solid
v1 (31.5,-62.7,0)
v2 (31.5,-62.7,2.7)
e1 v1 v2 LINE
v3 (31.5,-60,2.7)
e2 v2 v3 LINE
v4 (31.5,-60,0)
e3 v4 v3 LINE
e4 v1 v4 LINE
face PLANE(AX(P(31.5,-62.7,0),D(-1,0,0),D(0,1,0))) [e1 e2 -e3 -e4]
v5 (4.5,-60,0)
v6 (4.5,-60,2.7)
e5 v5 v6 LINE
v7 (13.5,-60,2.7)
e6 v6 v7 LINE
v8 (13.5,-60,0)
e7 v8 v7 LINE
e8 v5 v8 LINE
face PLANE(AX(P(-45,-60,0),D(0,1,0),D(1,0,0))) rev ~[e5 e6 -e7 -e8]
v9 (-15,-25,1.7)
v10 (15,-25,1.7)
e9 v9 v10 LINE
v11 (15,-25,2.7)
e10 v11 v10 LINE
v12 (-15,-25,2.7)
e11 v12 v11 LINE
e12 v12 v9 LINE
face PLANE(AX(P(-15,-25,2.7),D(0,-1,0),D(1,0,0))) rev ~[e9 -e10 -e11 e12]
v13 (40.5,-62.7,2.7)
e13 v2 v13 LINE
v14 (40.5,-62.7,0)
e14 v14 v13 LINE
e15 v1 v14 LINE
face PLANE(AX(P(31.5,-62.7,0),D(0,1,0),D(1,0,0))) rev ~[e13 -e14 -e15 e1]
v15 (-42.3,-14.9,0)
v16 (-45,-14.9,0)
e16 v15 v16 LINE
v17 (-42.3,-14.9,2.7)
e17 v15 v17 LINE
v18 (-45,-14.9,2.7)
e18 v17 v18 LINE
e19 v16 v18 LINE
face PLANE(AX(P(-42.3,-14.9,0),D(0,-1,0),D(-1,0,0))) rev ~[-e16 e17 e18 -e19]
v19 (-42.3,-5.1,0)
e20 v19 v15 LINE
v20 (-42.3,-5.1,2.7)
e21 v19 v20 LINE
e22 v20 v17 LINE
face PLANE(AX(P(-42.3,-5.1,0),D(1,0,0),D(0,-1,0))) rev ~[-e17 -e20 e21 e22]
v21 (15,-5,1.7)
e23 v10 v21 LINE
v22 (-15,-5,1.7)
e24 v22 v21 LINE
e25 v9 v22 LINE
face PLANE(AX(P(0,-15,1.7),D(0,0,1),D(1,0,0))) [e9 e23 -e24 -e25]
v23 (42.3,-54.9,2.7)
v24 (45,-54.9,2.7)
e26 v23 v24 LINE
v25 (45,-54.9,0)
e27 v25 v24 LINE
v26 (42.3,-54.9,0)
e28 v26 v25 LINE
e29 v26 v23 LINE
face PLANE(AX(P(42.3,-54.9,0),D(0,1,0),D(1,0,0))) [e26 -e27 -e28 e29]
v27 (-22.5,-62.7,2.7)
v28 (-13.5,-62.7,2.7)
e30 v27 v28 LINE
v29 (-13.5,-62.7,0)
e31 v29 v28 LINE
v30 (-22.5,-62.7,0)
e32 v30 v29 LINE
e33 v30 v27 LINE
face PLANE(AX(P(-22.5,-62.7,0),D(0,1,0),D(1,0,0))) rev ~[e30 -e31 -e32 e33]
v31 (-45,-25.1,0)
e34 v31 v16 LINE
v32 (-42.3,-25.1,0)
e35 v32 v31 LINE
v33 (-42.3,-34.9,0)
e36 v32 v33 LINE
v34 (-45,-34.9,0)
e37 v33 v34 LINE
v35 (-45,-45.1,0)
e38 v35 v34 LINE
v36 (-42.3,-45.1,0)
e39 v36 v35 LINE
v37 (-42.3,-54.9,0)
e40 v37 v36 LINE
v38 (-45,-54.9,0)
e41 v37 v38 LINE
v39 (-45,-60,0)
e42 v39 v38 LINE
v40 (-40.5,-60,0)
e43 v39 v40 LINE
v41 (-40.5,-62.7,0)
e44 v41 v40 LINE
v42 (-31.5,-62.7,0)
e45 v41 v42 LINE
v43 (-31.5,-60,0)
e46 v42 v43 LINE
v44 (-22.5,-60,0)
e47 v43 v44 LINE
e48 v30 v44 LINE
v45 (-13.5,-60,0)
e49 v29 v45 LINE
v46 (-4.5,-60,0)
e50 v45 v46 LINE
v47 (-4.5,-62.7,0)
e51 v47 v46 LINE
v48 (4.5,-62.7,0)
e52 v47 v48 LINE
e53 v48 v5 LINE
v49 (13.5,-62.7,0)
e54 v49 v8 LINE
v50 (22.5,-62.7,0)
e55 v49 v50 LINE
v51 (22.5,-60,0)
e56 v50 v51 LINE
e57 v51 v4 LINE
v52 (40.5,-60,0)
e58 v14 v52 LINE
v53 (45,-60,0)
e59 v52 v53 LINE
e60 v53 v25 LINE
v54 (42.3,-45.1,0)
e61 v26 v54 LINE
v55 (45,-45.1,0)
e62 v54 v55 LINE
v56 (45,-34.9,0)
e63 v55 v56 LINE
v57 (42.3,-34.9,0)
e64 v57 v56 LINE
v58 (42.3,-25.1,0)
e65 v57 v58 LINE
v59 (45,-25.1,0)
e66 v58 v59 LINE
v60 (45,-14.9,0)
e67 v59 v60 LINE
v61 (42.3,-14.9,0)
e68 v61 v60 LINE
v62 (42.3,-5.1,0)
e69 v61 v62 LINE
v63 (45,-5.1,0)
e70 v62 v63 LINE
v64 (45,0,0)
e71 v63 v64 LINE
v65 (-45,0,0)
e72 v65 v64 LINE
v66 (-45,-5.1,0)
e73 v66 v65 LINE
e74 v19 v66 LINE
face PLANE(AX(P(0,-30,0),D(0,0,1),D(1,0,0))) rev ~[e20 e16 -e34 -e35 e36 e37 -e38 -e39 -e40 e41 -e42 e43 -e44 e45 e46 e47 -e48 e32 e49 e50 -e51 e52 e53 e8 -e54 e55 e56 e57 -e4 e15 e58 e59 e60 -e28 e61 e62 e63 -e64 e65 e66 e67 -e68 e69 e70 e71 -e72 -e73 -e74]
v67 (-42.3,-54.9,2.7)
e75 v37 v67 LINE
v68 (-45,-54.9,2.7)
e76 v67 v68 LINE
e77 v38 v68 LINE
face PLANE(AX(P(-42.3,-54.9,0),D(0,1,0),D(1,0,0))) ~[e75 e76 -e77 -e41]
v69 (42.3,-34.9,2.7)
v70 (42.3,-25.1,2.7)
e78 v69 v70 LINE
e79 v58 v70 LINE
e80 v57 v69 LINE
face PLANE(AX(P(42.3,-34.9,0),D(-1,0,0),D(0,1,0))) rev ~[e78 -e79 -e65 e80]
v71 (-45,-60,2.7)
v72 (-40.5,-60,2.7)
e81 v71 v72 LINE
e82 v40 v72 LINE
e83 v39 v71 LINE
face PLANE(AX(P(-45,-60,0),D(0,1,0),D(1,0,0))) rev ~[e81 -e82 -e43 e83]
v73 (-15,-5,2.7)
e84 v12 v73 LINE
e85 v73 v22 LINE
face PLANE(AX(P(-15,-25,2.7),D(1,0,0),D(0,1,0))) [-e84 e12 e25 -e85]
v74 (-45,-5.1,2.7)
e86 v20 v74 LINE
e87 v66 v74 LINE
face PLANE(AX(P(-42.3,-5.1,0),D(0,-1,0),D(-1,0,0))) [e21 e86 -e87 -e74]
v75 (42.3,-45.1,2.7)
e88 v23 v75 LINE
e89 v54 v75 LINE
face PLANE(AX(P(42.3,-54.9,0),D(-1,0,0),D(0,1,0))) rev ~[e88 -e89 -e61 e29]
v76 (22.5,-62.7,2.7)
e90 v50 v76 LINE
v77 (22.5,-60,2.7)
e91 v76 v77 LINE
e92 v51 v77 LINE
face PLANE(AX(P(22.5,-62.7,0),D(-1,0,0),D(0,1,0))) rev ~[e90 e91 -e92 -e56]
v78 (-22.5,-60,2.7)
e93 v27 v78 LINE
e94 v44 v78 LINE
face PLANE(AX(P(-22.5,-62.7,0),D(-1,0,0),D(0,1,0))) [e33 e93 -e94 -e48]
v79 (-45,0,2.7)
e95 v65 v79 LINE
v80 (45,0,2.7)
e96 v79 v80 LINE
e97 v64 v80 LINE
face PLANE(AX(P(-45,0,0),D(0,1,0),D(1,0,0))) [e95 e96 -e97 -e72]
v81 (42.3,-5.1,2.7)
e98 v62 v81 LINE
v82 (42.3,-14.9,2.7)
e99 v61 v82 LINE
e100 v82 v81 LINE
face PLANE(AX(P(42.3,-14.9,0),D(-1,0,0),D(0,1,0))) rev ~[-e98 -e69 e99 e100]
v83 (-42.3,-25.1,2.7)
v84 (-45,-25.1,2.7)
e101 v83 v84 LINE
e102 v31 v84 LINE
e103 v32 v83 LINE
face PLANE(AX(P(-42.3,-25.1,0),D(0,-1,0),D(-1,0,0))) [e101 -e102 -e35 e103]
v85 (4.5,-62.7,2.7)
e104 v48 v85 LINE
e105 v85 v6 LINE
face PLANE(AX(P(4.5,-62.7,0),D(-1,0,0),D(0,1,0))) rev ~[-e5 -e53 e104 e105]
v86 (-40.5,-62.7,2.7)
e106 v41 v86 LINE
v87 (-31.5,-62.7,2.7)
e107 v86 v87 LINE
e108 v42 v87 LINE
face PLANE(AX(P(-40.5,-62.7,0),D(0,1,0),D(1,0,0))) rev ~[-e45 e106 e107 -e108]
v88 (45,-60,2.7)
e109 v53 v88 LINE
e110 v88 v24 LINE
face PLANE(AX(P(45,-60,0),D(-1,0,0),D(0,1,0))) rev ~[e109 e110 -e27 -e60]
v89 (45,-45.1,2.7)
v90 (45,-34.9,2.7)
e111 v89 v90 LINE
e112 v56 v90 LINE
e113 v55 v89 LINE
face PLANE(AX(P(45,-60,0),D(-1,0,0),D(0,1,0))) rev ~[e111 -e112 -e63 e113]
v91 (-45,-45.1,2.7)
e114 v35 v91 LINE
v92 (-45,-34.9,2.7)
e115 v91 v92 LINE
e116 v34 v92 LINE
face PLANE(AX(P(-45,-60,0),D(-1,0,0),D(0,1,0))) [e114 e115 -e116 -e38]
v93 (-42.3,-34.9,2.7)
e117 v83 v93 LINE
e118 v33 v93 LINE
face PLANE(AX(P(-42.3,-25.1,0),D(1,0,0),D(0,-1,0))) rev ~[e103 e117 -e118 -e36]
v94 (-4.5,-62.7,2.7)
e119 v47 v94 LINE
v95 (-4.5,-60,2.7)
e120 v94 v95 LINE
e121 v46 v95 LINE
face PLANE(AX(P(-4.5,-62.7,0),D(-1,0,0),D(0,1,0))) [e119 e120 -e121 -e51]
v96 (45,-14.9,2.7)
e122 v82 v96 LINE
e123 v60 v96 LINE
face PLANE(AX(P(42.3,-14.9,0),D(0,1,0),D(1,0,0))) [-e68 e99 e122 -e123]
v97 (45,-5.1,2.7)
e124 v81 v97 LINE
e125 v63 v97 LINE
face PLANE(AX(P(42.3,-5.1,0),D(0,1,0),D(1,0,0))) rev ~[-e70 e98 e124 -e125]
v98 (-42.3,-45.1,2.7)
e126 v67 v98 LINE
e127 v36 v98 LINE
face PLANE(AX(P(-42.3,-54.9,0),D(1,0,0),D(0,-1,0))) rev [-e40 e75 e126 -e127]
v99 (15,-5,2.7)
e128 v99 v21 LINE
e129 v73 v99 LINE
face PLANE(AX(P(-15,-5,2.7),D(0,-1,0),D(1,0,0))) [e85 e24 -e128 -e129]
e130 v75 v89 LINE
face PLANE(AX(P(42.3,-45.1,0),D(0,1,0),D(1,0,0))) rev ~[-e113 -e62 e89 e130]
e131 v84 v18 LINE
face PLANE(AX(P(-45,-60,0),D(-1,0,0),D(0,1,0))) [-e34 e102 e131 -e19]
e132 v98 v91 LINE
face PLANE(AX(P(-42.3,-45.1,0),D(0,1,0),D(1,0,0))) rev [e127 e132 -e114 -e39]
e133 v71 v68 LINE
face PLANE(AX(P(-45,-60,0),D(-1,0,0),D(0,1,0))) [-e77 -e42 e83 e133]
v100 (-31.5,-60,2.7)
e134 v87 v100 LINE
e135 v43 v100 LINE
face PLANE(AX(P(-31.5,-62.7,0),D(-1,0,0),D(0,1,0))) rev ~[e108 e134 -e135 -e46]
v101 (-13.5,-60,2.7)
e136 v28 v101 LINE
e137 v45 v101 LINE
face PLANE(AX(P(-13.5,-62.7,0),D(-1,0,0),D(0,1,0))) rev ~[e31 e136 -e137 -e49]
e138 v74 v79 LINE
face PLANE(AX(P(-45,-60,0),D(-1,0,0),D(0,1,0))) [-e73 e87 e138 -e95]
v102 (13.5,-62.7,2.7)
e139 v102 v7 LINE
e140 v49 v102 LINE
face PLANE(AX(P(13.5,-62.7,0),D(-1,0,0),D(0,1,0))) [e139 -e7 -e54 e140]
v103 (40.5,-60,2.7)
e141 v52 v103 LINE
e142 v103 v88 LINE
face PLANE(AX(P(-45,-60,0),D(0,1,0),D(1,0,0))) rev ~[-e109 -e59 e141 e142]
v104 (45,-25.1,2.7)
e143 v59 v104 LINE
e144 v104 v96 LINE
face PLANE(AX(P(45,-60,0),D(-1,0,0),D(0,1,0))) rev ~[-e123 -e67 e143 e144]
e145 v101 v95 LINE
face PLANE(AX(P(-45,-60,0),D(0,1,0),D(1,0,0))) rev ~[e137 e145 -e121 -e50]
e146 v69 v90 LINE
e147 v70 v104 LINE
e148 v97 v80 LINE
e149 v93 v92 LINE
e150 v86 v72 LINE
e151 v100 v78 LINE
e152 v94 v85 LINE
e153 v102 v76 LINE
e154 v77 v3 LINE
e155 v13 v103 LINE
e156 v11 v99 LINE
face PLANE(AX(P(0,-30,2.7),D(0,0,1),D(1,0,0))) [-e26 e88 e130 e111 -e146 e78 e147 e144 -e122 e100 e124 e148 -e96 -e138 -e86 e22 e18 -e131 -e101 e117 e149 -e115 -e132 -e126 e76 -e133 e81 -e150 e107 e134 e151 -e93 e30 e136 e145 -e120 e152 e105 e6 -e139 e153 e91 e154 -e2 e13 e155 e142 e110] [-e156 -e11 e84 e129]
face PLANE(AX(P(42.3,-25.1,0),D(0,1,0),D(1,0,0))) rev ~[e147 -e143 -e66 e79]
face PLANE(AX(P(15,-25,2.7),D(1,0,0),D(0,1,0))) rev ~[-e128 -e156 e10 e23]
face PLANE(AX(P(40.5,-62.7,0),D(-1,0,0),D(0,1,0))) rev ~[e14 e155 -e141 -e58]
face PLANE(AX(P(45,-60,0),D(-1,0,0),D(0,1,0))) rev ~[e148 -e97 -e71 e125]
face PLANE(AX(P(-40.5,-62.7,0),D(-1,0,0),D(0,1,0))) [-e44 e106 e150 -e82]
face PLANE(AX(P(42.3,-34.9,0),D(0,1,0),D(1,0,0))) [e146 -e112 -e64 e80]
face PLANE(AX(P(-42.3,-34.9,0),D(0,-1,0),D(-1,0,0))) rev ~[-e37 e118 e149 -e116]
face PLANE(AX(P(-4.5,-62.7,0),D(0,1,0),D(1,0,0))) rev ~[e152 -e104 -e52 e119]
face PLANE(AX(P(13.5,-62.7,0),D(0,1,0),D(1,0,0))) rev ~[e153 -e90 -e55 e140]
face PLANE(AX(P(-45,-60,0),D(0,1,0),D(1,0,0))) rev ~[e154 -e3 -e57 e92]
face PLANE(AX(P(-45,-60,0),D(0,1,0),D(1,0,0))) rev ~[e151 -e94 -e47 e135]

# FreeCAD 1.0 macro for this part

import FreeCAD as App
import Part
import Sketcher
Q = App.Units.Quantity

doc = App.newDocument("Part")
body = doc.addObject("PartDesign::Body", "Body")

# Sketch on XY plane
sketch1 = body.newObject("Sketcher::SketchObject", "Sketch")
sketch1.AttachmentSupport = (doc.getObject("XY_Plane"), [""])
sketch1.MapMode = "FlatFace"
sketch1.addGeometry([
    Part.LineSegment(App.Vector(-45, 0, 0), App.Vector(-45, -60, 0)),
    Part.LineSegment(App.Vector(-45, -60, 0), App.Vector(45, -60, 0)),
    Part.LineSegment(App.Vector(45, -60, 0), App.Vector(45, 0, 0)),
    Part.LineSegment(App.Vector(45, 0, 0), App.Vector(-45, 0, 0)),
], False)
sketch1.addConstraint([
    Sketcher.Constraint("Coincident", 0, 2, 1, 1),
    Sketcher.Constraint("Coincident", 1, 2, 2, 1),
    Sketcher.Constraint("Coincident", 2, 2, 3, 1),
    Sketcher.Constraint("Coincident", 3, 2, 0, 1),
    Sketcher.Constraint("Vertical", 0),
    Sketcher.Constraint("Horizontal", 1),
    Sketcher.Constraint("Vertical", 2),
    Sketcher.Constraint("Horizontal", 3),
    Sketcher.Constraint("Symmetric", 2, 2, 3, 2, -1, 1),
    Sketcher.Constraint("DistanceX", 1, 1, 1, 2, Q("90 mm")),
    Sketcher.Constraint("DistanceY", 0, 2, 0, 1, Q("60 mm")),
])
pad1 = body.newObject("PartDesign::Pad", "Pad")
pad1.Profile = sketch1
pad1.Length = 2.7

# Sketch on XY plane
sketch2 = body.newObject("Sketcher::SketchObject", "Sketch001")
sketch2.AttachmentSupport = (doc.getObject("XY_Plane"), [""])
sketch2.MapMode = "FlatFace"
sketch2.addGeometry([
    Part.LineSegment(App.Vector(-4.5, -60, 0), App.Vector(-4.5, -62.7, 0)),
    Part.LineSegment(App.Vector(-4.5, -62.7, 0), App.Vector(4.5, -62.7, 0)),
    Part.LineSegment(App.Vector(4.5, -62.7, 0), App.Vector(4.5, -60, 0)),
    Part.LineSegment(App.Vector(4.5, -60, 0), App.Vector(-4.5, -60, 0)),
], False)
sketch2.addConstraint([
    Sketcher.Constraint("Coincident", 0, 2, 1, 1),
    Sketcher.Constraint("Coincident", 1, 2, 2, 1),
    Sketcher.Constraint("Coincident", 2, 2, 3, 1),
    Sketcher.Constraint("Coincident", 3, 2, 0, 1),
    Sketcher.Constraint("Vertical", 0),
    Sketcher.Constraint("Horizontal", 1),
    Sketcher.Constraint("Vertical", 2),
    Sketcher.Constraint("Horizontal", 3),
    Sketcher.Constraint("DistanceX", 1, 1, 1, 2, Q("9 mm")),
    Sketcher.Constraint("DistanceY", 0, 2, 0, 1, Q("2.7 mm")),
    Sketcher.Constraint("DistanceY", 2, 2, -1, 1, Q("60 mm")),
    Sketcher.Constraint("DistanceX", 0, 2, -1, 1, Q("4.5 mm")),
])
pad2 = body.newObject("PartDesign::Pad", "Pad001")
pad2.Profile = sketch2
pad2.Length = 2.7
doc.recompute()

linearpattern = body.newObject("PartDesign::LinearPattern", "LinearPattern")
linearpattern.Originals = [pad2]
linearpattern.Direction = (doc.getObject("X_Axis"), [""])
linearpattern.Mode = "offset"
linearpattern.Offset = 18
linearpattern.Occurrences = 3
body.Tip = linearpattern
doc.recompute()

linearpattern2 = body.newObject("PartDesign::LinearPattern", "LinearPattern001")
linearpattern2.Originals = [pad2]
linearpattern2.Direction = (doc.getObject("X_Axis"), [""])
linearpattern2.Mode = "offset"
linearpattern2.Offset = 18
linearpattern2.Occurrences = 3
linearpattern2.Reversed = True
body.Tip = linearpattern2

# Sketch on XY plane
sketch3 = body.newObject("Sketcher::SketchObject", "Sketch002")
sketch3.AttachmentSupport = (doc.getObject("XY_Plane"), [""])
sketch3.MapMode = "FlatFace"
sketch3.addGeometry([
    Part.LineSegment(App.Vector(42.3, -45.1, 0), App.Vector(42.3, -54.9, 0)),
    Part.LineSegment(App.Vector(42.3, -54.9, 0), App.Vector(45, -54.9, 0)),
    Part.LineSegment(App.Vector(45, -54.9, 0), App.Vector(45, -45.1, 0)),
    Part.LineSegment(App.Vector(45, -45.1, 0), App.Vector(42.3, -45.1, 0)),
], False)
sketch3.addConstraint([
    Sketcher.Constraint("Coincident", 0, 2, 1, 1),
    Sketcher.Constraint("Coincident", 1, 2, 2, 1),
    Sketcher.Constraint("Coincident", 2, 2, 3, 1),
    Sketcher.Constraint("Coincident", 3, 2, 0, 1),
    Sketcher.Constraint("Vertical", 0),
    Sketcher.Constraint("Horizontal", 1),
    Sketcher.Constraint("Vertical", 2),
    Sketcher.Constraint("Horizontal", 3),
    Sketcher.Constraint("DistanceX", 1, 1, 1, 2, Q("2.7 mm")),
    Sketcher.Constraint("DistanceY", 0, 2, 0, 1, Q("9.8 mm")),
    Sketcher.Constraint("DistanceX", -1, 1, 1, 2, Q("45 mm")),
    Sketcher.Constraint("DistanceY", 0, 2, -1, 1, Q("54.9 mm")),
])
pocket1 = body.newObject("PartDesign::Pocket", "Pocket")
pocket1.Profile = sketch3
pocket1.Length = 2.7
pocket1.Reversed = True
doc.recompute()

linearpattern3 = body.newObject("PartDesign::LinearPattern", "LinearPattern002")
linearpattern3.Originals = [pocket1]
linearpattern3.Direction = (doc.getObject("Y_Axis"), [""])
linearpattern3.Mode = "offset"
linearpattern3.Offset = 20
linearpattern3.Occurrences = 5
body.Tip = linearpattern3
doc.recompute()

mirrored = body.newObject("PartDesign::Mirrored", "Mirrored")
mirrored.Originals = [pocket1]
mirrored.MirrorPlane = (doc.getObject("YZ_Plane"), [""])
body.Tip = mirrored

# Sketch on XY plane
sketch4 = body.newObject("Sketcher::SketchObject", "Sketch003")
sketch4.AttachmentSupport = (doc.getObject("XY_Plane"), [""])
sketch4.MapMode = "FlatFace"
sketch4.addGeometry([
    Part.LineSegment(App.Vector(-42.3, -34.9, 0), App.Vector(-42.3, -25.1, 0)),
    Part.LineSegment(App.Vector(-42.3, -25.1, 0), App.Vector(-45, -25.1, 0)),
    Part.LineSegment(App.Vector(-45, -25.1, 0), App.Vector(-45, -34.9, 0)),
    Part.LineSegment(App.Vector(-45, -34.9, 0), App.Vector(-42.3, -34.9, 0)),
], False)
sketch4.addConstraint([
    Sketcher.Constraint("Coincident", 0, 2, 1, 1),
    Sketcher.Constraint("Coincident", 1, 2, 2, 1),
    Sketcher.Constraint("Coincident", 2, 2, 3, 1),
    Sketcher.Constraint("Coincident", 3, 2, 0, 1),
    Sketcher.Constraint("Vertical", 0),
    Sketcher.Constraint("Horizontal", 1),
    Sketcher.Constraint("Vertical", 2),
    Sketcher.Constraint("Horizontal", 3),
    Sketcher.Constraint("DistanceX", 1, 2, 1, 1, Q("2.7 mm")),
    Sketcher.Constraint("DistanceY", 0, 1, 0, 2, Q("9.8 mm")),
    Sketcher.Constraint("DistanceX", 1, 2, -1, 1, Q("45 mm")),
    Sketcher.Constraint("DistanceY", 0, 2, -1, 1, Q("25.1 mm")),
])
pocket2 = body.newObject("PartDesign::Pocket", "Pocket001")
pocket2.Profile = sketch4
pocket2.Length = 2.7
pocket2.Reversed = True

# Sketch on XY plane
sketch5 = body.newObject("Sketcher::SketchObject", "Sketch004")
sketch5.AttachmentSupport = (doc.getObject("XY_Plane"), [""])
sketch5.MapMode = "FlatFace"
sketch5.addGeometry([
    Part.LineSegment(App.Vector(-42.3, -14.9, 0), App.Vector(-42.3, -5.1, 0)),
    Part.LineSegment(App.Vector(-42.3, -5.1, 0), App.Vector(-45, -5.1, 0)),
    Part.LineSegment(App.Vector(-45, -5.1, 0), App.Vector(-45, -14.9, 0)),
    Part.LineSegment(App.Vector(-45, -14.9, 0), App.Vector(-42.3, -14.9, 0)),
], False)
sketch5.addConstraint([
    Sketcher.Constraint("Coincident", 0, 2, 1, 1),
    Sketcher.Constraint("Coincident", 1, 2, 2, 1),
    Sketcher.Constraint("Coincident", 2, 2, 3, 1),
    Sketcher.Constraint("Coincident", 3, 2, 0, 1),
    Sketcher.Constraint("Vertical", 0),
    Sketcher.Constraint("Horizontal", 1),
    Sketcher.Constraint("Vertical", 2),
    Sketcher.Constraint("Horizontal", 3),
    Sketcher.Constraint("DistanceX", 1, 2, 1, 1, Q("2.7 mm")),
    Sketcher.Constraint("DistanceY", 0, 1, 0, 2, Q("9.8 mm")),
    Sketcher.Constraint("DistanceX", 1, 2, -1, 1, Q("45 mm")),
    Sketcher.Constraint("DistanceY", 0, 2, -1, 1, Q("5.1 mm")),
])
pocket3 = body.newObject("PartDesign::Pocket", "Pocket002")
pocket3.Profile = sketch5
pocket3.Length = 2.7
pocket3.Reversed = True

# Sketch on XY plane
sketch6 = body.newObject("Sketcher::SketchObject", "Sketch005")
sketch6.AttachmentSupport = (doc.getObject("XY_Plane"), [""])
sketch6.MapMode = "FlatFace"
sketch6.addGeometry([
    Part.LineSegment(App.Vector(-42.3, 5.1, 0), App.Vector(-42.3, 14.9, 0)),
    Part.LineSegment(App.Vector(-42.3, 14.9, 0), App.Vector(-45, 14.9, 0)),
    Part.LineSegment(App.Vector(-45, 14.9, 0), App.Vector(-45, 5.1, 0)),
    Part.LineSegment(App.Vector(-45, 5.1, 0), App.Vector(-42.3, 5.1, 0)),
], False)
sketch6.addConstraint([
    Sketcher.Constraint("Coincident", 0, 2, 1, 1),
    Sketcher.Constraint("Coincident", 1, 2, 2, 1),
    Sketcher.Constraint("Coincident", 2, 2, 3, 1),
    Sketcher.Constraint("Coincident", 3, 2, 0, 1),
    Sketcher.Constraint("Vertical", 0),
    Sketcher.Constraint("Horizontal", 1),
    Sketcher.Constraint("Vertical", 2),
    Sketcher.Constraint("Horizontal", 3),
    Sketcher.Constraint("DistanceX", 1, 2, 1, 1, Q("2.7 mm")),
    Sketcher.Constraint("DistanceY", 0, 1, 0, 2, Q("9.8 mm")),
    Sketcher.Constraint("DistanceX", 1, 2, -1, 1, Q("45 mm")),
    Sketcher.Constraint("DistanceY", -1, 1, 0, 2, Q("14.9 mm")),
])
pocket4 = body.newObject("PartDesign::Pocket", "Pocket003")
pocket4.Profile = sketch6
pocket4.Length = 2.7
pocket4.Reversed = True

# Sketch on XY plane
sketch7 = body.newObject("Sketcher::SketchObject", "Sketch006")
sketch7.AttachmentSupport = (doc.getObject("XY_Plane"), [""])
sketch7.MapMode = "FlatFace"
sketch7.addGeometry([
    Part.LineSegment(App.Vector(-42.3, 25.1, 0), App.Vector(-42.3, 34.9, 0)),
    Part.LineSegment(App.Vector(-42.3, 34.9, 0), App.Vector(-45, 34.9, 0)),
    Part.LineSegment(App.Vector(-45, 34.9, 0), App.Vector(-45, 25.1, 0)),
    Part.LineSegment(App.Vector(-45, 25.1, 0), App.Vector(-42.3, 25.1, 0)),
], False)
sketch7.addConstraint([
    Sketcher.Constraint("Coincident", 0, 2, 1, 1),
    Sketcher.Constraint("Coincident", 1, 2, 2, 1),
    Sketcher.Constraint("Coincident", 2, 2, 3, 1),
    Sketcher.Constraint("Coincident", 3, 2, 0, 1),
    Sketcher.Constraint("Vertical", 0),
    Sketcher.Constraint("Horizontal", 1),
    Sketcher.Constraint("Vertical", 2),
    Sketcher.Constraint("Horizontal", 3),
    Sketcher.Constraint("DistanceX", 1, 2, 1, 1, Q("2.7 mm")),
    Sketcher.Constraint("DistanceY", 0, 1, 0, 2, Q("9.8 mm")),
    Sketcher.Constraint("DistanceX", 1, 2, -1, 1, Q("45 mm")),
    Sketcher.Constraint("DistanceY", -1, 1, 0, 2, Q("34.9 mm")),
])
pocket5 = body.newObject("PartDesign::Pocket", "Pocket004")
pocket5.Profile = sketch7
pocket5.Length = 2.7
pocket5.Reversed = True

# Sketch on XY plane
sketch8 = body.newObject("Sketcher::SketchObject", "Sketch007")
sketch8.AttachmentSupport = (doc.getObject("XY_Plane"), [""])
sketch8.MapMode = "FlatFace"
sketch8.AttachmentOffset = App.Placement(App.Vector(0, 0, 2.7), App.Rotation())
sketch8.addGeometry([
    Part.LineSegment(App.Vector(-15, -5, 0), App.Vector(-15, -25, 0)),
    Part.LineSegment(App.Vector(-15, -25, 0), App.Vector(15, -25, 0)),
    Part.LineSegment(App.Vector(15, -25, 0), App.Vector(15, -5, 0)),
    Part.LineSegment(App.Vector(15, -5, 0), App.Vector(-15, -5, 0)),
], False)
sketch8.addConstraint([
    Sketcher.Constraint("Coincident", 0, 2, 1, 1),
    Sketcher.Constraint("Coincident", 1, 2, 2, 1),
    Sketcher.Constraint("Coincident", 2, 2, 3, 1),
    Sketcher.Constraint("Coincident", 3, 2, 0, 1),
    Sketcher.Constraint("Vertical", 0),
    Sketcher.Constraint("Horizontal", 1),
    Sketcher.Constraint("Vertical", 2),
    Sketcher.Constraint("Horizontal", 3),
    Sketcher.Constraint("DistanceX", 1, 1, 1, 2, Q("30 mm")),
    Sketcher.Constraint("DistanceY", 0, 2, 0, 1, Q("20 mm")),
    Sketcher.Constraint("DistanceX", 0, 2, -1, 1, Q("15 mm")),
    Sketcher.Constraint("DistanceY", 0, 2, -1, 1, Q("25 mm")),
])
pocket6 = body.newObject("PartDesign::Pocket", "Pocket005")
pocket6.Profile = sketch8
pocket6.Length = 1

doc.recompute()
